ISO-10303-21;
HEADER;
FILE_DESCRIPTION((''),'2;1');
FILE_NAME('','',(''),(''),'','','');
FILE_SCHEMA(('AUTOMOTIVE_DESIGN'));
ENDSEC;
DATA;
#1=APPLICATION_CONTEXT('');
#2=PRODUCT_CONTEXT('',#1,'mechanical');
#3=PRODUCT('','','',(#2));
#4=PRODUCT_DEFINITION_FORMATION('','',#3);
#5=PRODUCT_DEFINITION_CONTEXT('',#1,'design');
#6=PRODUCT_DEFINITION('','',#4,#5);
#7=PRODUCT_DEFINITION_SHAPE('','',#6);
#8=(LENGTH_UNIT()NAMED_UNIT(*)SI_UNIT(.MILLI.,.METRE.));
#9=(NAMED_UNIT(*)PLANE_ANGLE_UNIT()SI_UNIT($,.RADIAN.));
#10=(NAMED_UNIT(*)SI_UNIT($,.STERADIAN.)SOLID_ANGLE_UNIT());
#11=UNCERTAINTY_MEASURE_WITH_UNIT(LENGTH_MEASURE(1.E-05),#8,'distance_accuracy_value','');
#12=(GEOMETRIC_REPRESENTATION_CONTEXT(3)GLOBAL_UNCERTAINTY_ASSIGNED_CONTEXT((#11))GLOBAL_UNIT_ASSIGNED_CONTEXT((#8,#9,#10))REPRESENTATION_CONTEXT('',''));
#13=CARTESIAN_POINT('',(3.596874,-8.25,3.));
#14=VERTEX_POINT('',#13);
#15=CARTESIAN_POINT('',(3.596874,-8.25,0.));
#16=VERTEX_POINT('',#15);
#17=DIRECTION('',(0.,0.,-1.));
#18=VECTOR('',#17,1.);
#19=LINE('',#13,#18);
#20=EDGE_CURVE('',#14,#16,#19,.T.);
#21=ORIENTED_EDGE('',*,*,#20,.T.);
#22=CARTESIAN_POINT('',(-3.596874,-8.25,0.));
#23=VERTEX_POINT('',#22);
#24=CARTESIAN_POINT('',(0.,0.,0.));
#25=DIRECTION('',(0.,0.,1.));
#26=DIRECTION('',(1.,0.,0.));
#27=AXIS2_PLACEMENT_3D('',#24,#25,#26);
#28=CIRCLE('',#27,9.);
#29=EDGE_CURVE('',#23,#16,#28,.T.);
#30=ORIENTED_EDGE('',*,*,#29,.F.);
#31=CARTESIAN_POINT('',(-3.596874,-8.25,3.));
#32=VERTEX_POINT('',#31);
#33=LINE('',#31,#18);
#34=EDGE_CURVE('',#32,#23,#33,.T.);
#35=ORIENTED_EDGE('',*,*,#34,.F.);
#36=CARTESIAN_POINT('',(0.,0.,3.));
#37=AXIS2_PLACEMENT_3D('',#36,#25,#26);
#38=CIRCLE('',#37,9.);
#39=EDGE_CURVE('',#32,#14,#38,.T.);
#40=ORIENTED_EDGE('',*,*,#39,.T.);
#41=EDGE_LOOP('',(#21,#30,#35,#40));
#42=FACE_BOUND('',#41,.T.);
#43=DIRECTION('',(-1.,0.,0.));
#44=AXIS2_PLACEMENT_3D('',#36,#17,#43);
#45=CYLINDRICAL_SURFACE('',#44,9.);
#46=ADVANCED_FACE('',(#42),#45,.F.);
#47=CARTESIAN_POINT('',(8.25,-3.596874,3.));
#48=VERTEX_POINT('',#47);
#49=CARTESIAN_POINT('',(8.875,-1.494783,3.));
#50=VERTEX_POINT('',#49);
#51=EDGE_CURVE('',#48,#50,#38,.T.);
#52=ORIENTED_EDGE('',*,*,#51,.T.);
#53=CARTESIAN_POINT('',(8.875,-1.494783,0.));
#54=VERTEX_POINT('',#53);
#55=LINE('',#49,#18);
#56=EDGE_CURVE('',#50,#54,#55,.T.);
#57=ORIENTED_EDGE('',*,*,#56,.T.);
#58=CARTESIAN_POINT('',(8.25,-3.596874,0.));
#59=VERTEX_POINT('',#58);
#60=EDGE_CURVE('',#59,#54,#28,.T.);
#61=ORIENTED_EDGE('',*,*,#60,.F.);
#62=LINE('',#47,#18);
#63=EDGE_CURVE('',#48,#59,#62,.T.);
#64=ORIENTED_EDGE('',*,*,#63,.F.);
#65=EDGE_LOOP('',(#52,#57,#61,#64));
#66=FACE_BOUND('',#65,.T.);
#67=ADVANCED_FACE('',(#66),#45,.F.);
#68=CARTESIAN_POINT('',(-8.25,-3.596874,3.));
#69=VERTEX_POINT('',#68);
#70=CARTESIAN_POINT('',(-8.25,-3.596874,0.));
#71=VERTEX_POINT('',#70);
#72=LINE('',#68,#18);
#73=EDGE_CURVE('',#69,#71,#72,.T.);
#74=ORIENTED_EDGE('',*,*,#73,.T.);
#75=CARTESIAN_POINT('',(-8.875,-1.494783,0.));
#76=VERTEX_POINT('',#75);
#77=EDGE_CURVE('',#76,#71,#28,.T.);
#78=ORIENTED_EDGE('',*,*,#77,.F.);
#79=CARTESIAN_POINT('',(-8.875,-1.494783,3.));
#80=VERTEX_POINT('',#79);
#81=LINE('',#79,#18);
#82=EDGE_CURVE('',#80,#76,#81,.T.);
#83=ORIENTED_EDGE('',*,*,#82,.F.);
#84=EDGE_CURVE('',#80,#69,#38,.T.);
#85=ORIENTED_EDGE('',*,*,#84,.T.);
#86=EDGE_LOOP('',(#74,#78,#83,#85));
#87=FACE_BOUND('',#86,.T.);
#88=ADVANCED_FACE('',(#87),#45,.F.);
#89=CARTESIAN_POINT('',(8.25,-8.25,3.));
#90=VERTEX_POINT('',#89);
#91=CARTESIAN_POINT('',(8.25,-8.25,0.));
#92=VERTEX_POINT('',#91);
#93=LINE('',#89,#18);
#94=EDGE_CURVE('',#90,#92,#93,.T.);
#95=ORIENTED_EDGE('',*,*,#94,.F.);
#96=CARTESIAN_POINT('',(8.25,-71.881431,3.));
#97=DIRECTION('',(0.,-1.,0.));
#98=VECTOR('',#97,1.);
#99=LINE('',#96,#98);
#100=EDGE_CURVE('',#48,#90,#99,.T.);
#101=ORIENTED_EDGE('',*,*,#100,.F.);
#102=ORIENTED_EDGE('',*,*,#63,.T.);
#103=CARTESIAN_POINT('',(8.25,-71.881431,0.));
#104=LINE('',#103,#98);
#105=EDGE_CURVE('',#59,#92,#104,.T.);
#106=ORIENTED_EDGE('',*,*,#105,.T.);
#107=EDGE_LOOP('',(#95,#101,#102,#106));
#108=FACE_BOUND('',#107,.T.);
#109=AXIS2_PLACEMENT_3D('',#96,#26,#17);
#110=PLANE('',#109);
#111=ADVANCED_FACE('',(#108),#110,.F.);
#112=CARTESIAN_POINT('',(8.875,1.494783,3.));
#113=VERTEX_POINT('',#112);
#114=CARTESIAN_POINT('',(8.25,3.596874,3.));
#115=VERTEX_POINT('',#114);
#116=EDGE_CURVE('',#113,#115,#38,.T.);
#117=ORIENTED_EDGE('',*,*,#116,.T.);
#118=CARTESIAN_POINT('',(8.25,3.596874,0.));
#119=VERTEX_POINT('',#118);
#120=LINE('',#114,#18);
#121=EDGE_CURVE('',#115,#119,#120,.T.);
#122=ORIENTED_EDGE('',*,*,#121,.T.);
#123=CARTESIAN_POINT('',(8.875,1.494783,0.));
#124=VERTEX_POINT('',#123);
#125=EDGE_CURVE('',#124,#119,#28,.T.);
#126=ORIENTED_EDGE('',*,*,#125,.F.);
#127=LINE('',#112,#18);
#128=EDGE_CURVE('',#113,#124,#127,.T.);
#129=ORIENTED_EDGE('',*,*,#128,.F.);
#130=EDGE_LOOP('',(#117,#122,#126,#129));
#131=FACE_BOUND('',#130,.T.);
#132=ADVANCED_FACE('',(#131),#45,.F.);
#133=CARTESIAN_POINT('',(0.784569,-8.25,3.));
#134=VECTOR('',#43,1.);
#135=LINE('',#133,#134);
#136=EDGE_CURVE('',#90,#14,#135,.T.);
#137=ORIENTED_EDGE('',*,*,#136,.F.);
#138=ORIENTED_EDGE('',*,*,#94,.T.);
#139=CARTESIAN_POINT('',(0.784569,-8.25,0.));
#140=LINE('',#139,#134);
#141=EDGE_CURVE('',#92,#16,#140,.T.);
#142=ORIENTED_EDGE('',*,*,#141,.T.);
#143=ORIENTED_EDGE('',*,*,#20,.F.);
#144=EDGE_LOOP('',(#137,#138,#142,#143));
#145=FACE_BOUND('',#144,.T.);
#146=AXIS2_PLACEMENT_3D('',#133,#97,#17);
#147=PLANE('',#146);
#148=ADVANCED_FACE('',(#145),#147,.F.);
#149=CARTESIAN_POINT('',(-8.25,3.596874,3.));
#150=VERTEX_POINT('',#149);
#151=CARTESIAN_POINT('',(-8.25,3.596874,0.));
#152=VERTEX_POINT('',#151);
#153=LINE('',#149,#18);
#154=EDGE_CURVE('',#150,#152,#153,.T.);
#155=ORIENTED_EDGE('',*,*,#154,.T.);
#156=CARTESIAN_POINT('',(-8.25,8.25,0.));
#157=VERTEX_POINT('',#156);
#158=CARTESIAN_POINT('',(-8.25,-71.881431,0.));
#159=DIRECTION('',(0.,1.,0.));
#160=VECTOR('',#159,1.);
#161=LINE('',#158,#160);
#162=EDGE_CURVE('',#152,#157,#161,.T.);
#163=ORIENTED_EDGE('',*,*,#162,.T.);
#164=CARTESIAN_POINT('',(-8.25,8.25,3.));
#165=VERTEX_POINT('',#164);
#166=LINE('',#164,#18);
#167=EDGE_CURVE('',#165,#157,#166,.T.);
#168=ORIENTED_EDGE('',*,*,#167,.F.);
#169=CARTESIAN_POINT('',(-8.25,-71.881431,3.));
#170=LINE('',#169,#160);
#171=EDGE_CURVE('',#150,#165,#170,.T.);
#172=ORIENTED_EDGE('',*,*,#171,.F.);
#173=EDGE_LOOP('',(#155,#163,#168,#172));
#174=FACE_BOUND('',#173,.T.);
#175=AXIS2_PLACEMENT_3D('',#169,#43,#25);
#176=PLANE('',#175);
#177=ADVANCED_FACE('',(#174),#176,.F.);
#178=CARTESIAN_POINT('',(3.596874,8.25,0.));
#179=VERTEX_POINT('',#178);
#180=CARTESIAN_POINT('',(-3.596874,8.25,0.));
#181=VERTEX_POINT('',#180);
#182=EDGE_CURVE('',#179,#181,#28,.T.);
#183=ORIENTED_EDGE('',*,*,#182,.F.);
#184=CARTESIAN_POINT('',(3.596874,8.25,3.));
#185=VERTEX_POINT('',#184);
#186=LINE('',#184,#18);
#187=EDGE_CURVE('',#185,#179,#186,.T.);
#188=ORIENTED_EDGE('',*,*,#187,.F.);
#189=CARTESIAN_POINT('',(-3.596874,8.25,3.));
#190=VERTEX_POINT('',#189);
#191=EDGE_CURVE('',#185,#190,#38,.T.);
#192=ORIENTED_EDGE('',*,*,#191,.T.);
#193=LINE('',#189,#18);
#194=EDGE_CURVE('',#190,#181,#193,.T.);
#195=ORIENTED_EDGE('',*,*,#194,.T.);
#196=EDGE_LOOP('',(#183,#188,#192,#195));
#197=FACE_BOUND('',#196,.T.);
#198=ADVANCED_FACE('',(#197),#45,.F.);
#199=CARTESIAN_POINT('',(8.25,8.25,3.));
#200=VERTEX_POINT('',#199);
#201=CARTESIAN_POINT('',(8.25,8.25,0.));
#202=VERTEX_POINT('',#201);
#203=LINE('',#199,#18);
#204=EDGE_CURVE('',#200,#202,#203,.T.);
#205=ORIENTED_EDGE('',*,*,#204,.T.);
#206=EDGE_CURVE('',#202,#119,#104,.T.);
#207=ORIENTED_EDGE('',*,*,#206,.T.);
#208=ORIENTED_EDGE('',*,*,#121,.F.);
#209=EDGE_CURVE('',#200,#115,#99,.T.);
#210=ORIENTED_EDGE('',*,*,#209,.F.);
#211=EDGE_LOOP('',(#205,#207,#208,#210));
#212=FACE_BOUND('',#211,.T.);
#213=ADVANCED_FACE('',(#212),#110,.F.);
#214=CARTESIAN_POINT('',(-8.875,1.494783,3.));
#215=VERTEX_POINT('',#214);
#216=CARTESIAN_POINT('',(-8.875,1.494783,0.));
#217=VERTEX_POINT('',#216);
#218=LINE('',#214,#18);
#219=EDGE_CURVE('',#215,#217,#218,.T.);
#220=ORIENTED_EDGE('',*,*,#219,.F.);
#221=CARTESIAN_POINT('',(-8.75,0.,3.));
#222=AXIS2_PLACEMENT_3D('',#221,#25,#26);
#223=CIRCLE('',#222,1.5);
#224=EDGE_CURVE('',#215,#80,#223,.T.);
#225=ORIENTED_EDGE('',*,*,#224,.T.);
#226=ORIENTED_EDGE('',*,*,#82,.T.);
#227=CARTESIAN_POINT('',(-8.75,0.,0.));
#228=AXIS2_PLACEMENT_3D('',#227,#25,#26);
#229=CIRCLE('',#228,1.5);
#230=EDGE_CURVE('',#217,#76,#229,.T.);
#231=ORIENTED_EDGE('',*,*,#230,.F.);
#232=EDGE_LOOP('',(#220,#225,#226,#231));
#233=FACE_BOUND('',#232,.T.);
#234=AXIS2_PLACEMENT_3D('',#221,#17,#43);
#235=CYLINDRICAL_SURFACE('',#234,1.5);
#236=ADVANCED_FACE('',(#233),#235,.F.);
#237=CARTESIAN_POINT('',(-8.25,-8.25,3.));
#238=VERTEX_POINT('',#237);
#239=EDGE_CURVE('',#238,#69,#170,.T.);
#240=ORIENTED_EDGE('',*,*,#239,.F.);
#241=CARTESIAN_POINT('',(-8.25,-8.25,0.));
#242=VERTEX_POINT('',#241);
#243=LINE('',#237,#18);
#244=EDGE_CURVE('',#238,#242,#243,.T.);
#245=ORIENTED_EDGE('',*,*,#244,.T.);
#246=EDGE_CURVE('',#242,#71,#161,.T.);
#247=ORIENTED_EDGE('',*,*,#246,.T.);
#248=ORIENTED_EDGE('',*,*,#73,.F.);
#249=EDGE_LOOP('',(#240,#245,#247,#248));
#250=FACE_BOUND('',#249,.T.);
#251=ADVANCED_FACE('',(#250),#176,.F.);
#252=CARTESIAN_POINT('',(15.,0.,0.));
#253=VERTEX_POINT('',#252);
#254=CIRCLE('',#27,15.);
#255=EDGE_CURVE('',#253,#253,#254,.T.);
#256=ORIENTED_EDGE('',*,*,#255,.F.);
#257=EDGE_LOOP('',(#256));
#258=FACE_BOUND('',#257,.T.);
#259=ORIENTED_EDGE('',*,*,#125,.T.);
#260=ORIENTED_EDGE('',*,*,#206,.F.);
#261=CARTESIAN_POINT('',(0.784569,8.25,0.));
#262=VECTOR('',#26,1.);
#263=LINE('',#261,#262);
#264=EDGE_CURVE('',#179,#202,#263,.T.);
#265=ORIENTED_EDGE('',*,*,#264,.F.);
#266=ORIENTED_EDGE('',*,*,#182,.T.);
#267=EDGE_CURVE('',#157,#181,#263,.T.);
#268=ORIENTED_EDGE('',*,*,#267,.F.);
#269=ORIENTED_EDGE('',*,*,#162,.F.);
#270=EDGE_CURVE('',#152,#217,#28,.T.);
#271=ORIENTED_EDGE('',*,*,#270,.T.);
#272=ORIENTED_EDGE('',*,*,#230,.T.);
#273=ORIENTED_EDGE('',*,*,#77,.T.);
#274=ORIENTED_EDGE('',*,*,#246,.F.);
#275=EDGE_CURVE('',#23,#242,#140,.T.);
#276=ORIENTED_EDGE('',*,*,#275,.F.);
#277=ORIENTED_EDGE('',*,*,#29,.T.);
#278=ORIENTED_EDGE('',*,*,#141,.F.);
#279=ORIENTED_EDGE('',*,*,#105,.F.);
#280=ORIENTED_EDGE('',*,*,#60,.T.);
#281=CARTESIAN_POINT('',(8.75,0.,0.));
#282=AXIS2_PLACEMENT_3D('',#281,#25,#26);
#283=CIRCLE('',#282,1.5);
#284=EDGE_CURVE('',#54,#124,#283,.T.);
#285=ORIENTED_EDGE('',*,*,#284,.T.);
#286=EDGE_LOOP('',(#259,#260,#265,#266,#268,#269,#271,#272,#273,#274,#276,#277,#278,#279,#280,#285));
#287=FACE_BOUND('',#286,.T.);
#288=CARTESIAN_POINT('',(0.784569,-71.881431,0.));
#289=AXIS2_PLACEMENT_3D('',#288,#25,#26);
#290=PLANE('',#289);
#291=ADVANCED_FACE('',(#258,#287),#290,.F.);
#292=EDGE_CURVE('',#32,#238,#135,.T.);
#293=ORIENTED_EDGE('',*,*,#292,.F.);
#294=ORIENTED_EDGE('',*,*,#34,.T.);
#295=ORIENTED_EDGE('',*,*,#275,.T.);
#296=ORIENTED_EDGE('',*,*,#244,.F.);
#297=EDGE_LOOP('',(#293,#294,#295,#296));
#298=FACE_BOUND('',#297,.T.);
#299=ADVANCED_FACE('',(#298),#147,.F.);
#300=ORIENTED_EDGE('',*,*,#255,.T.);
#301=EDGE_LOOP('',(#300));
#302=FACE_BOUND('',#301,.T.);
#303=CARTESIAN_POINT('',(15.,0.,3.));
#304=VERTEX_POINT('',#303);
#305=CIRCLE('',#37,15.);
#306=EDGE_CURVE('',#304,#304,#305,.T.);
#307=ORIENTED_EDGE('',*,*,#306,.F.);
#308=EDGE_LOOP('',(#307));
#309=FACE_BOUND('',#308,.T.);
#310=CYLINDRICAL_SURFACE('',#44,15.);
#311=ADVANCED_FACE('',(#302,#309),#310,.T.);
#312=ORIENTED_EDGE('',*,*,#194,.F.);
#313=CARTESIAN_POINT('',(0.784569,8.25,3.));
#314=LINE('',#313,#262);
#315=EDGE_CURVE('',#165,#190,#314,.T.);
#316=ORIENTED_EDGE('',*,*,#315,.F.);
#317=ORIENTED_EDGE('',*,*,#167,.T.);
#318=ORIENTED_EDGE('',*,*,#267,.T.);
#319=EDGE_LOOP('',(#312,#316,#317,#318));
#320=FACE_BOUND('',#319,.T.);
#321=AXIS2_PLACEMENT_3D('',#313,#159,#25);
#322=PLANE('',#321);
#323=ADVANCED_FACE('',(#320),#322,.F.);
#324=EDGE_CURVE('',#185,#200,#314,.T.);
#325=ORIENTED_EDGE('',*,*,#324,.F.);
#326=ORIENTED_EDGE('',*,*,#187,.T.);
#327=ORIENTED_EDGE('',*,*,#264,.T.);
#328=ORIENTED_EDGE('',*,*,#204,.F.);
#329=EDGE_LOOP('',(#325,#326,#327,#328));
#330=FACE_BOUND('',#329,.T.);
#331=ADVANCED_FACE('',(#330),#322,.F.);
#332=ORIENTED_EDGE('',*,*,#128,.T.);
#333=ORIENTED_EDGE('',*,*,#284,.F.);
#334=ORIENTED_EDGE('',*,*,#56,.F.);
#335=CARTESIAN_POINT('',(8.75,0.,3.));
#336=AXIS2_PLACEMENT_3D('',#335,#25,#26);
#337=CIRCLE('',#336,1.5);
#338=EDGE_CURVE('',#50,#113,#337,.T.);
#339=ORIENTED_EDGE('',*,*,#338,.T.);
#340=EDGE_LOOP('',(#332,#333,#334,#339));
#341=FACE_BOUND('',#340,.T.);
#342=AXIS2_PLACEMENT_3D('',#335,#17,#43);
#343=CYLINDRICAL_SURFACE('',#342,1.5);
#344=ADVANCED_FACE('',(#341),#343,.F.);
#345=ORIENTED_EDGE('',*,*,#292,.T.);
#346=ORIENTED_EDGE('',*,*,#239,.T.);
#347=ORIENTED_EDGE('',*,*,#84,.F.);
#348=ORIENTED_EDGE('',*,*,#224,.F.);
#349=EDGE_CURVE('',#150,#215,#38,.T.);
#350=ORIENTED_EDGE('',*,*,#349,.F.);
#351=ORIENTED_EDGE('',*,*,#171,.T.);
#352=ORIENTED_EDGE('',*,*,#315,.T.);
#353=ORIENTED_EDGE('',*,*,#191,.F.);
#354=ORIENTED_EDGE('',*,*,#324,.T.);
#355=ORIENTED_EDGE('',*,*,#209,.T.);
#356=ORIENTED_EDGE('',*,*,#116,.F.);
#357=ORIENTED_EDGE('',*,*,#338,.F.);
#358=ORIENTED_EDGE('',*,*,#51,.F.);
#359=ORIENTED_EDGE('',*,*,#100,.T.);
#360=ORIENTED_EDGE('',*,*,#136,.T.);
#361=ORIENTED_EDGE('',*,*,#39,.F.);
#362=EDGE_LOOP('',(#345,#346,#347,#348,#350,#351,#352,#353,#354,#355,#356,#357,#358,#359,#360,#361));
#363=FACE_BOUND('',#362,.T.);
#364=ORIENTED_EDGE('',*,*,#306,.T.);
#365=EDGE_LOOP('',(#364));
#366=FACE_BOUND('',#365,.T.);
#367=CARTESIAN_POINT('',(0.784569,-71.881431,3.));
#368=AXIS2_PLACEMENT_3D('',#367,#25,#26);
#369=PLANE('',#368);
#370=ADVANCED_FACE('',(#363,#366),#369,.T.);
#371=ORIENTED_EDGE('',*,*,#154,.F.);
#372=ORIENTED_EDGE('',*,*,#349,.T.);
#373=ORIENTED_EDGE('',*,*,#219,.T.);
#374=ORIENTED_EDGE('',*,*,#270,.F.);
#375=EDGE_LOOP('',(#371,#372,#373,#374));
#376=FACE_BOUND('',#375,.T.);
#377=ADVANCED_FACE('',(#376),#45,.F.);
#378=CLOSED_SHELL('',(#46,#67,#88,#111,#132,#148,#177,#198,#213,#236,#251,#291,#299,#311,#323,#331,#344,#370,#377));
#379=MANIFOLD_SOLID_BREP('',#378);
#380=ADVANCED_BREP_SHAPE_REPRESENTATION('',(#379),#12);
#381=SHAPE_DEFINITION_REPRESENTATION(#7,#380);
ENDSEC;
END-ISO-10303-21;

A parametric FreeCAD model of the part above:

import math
import FreeCAD as App
import Part
import Sketcher

doc = App.newDocument("Part")
params = doc.addObject("Spreadsheet::Sheet", "Params")
for row, (alias, value) in enumerate([
    ("sketch1_diameter", "30 mm"),
    ("sketch1_radius", "9 mm"),
    ("sketch1_radius2", "1.5 mm"),
    ("pad1_length", "3 mm"),
], start=1):
    params.set(f"A{row}", alias)
    params.set(f"B{row}", "=" + value)
    params.setAlias(f"B{row}", alias)

body = doc.addObject("PartDesign::Body", "Body")

# Sketch on XY plane
sketch1 = body.newObject("Sketcher::SketchObject", "Sketch")
sketch1.AttachmentSupport = (doc.getObject("XY_Plane"), [""])
sketch1.MapMode = "FlatFace"
sketch1.addGeometry(Part.Circle(App.Vector(0, 0, 0), App.Vector(0, 0, 1), 15), False)
sketch1.addGeometry(Part.ArcOfCircle(Part.Circle(App.Vector(0, 0, 0), App.Vector(0, 0, 1), 9), math.radians(9.560384), math.radians(23.556464)), False)
sketch1.addGeometry(Part.ArcOfCircle(Part.Circle(App.Vector(8.75, 0, 0), App.Vector(0, 0, 1), 1.5), math.radians(-85.219808), math.radians(85.219808)), False)
sketch1.addGeometry(Part.ArcOfCircle(Part.Circle(App.Vector(0, 0, 0), App.Vector(0, 0, 1), 9), math.radians(-23.556464), math.radians(-9.560384)), False)
sketch1.addGeometry(Part.LineSegment(App.Vector(8.25, -3.596874, 0), App.Vector(8.25, -8.25, 0)), False)
sketch1.addGeometry(Part.LineSegment(App.Vector(8.25, -8.25, 0), App.Vector(3.596874, -8.25, 0)), False)
sketch1.addGeometry(Part.ArcOfCircle(Part.Circle(App.Vector(0, 0, 0), App.Vector(0, 0, 1), 9), math.radians(-113.556464), math.radians(-66.443536)), False)
sketch1.addGeometry(Part.LineSegment(App.Vector(-3.596874, -8.25, 0), App.Vector(-8.25, -8.25, 0)), False)
sketch1.addGeometry(Part.LineSegment(App.Vector(-8.25, -8.25, 0), App.Vector(-8.25, -3.596874, 0)), False)
sketch1.addGeometry(Part.ArcOfCircle(Part.Circle(App.Vector(0, 0, 0), App.Vector(0, 0, 1), 9), math.radians(-170.439616), math.radians(-156.443536)), False)
sketch1.addGeometry(Part.ArcOfCircle(Part.Circle(App.Vector(-8.75, 0, 0), App.Vector(0, 0, 1), 1.5), math.radians(94.780192), math.radians(265.219808)), False)
sketch1.addGeometry(Part.ArcOfCircle(Part.Circle(App.Vector(0, 0, 0), App.Vector(0, 0, 1), 9), math.radians(156.443536), math.radians(170.439616)), False)
sketch1.addGeometry(Part.LineSegment(App.Vector(-8.25, 3.596874, 0), App.Vector(-8.25, 8.25, 0)), False)
sketch1.addGeometry(Part.LineSegment(App.Vector(-8.25, 8.25, 0), App.Vector(-3.596874, 8.25, 0)), False)
sketch1.addGeometry(Part.ArcOfCircle(Part.Circle(App.Vector(0, 0, 0), App.Vector(0, 0, 1), 9), math.radians(66.443536), math.radians(113.556464)), False)
sketch1.addGeometry(Part.LineSegment(App.Vector(3.596874, 8.25, 0), App.Vector(8.25, 8.25, 0)), False)
sketch1.addGeometry(Part.LineSegment(App.Vector(8.25, 8.25, 0), App.Vector(8.25, 3.596874, 0)), False)
sketch1.addConstraint(Sketcher.Constraint("Coincident", 1, 1, 2, 2))
sketch1.addConstraint(Sketcher.Constraint("Coincident", 2, 1, 3, 2))
sketch1.addConstraint(Sketcher.Constraint("Coincident", 3, 1, 4, 1))
sketch1.addConstraint(Sketcher.Constraint("Coincident", 4, 2, 5, 1))
sketch1.addConstraint(Sketcher.Constraint("Coincident", 5, 2, 6, 2))
sketch1.addConstraint(Sketcher.Constraint("Coincident", 6, 1, 7, 1))
sketch1.addConstraint(Sketcher.Constraint("Coincident", 7, 2, 8, 1))
sketch1.addConstraint(Sketcher.Constraint("Coincident", 8, 2, 9, 2))
sketch1.addConstraint(Sketcher.Constraint("Coincident", 9, 1, 10, 2))
sketch1.addConstraint(Sketcher.Constraint("Coincident", 10, 1, 11, 2))
sketch1.addConstraint(Sketcher.Constraint("Coincident", 11, 1, 12, 1))
sketch1.addConstraint(Sketcher.Constraint("Coincident", 12, 2, 13, 1))
sketch1.addConstraint(Sketcher.Constraint("Coincident", 13, 2, 14, 2))
sketch1.addConstraint(Sketcher.Constraint("Coincident", 14, 1, 15, 1))
sketch1.addConstraint(Sketcher.Constraint("Coincident", 15, 2, 16, 1))
sketch1.addConstraint(Sketcher.Constraint("Coincident", 16, 2, 1, 2))
sketch1.addConstraint(Sketcher.Constraint("Vertical", 4))
sketch1.addConstraint(Sketcher.Constraint("Horizontal", 5))
sketch1.addConstraint(Sketcher.Constraint("Horizontal", 7))
sketch1.addConstraint(Sketcher.Constraint("Vertical", 8))
sketch1.addConstraint(Sketcher.Constraint("Vertical", 12))
sketch1.addConstraint(Sketcher.Constraint("Horizontal", 13))
sketch1.addConstraint(Sketcher.Constraint("Horizontal", 15))
sketch1.addConstraint(Sketcher.Constraint("Vertical", 16))
sketch1.addConstraint(Sketcher.Constraint("Coincident", 0, 3, -1, 1))
sketch1.addConstraint(Sketcher.Constraint("Coincident", 1, 3, -1, 1))
sketch1.addConstraint(Sketcher.Constraint("Coincident", 3, 3, -1, 1))
sketch1.addConstraint(Sketcher.Constraint("Coincident", 6, 3, -1, 1))
sketch1.addConstraint(Sketcher.Constraint("Coincident", 9, 3, -1, 1))
sketch1.addConstraint(Sketcher.Constraint("Coincident", 11, 3, -1, 1))
sketch1.addConstraint(Sketcher.Constraint("Coincident", 14, 3, -1, 1))
sketch1.addConstraint(Sketcher.Constraint("Equal", 1, 3))
sketch1.addConstraint(Sketcher.Constraint("Equal", 3, 6))
sketch1.addConstraint(Sketcher.Constraint("Equal", 6, 9))
sketch1.addConstraint(Sketcher.Constraint("Equal", 2, 10))
sketch1.addConstraint(Sketcher.Constraint("Equal", 9, 11))
sketch1.addConstraint(Sketcher.Constraint("Equal", 11, 14))
sketch1.addConstraint(Sketcher.Constraint("Symmetric", 2, 3, 10, 3, -1, 1))
sketch1.addConstraint(Sketcher.Constraint("Symmetric", 4, 2, 12, 2, -1, 1))
sketch1.addConstraint(Sketcher.Constraint("Symmetric", 7, 2, 15, 2, -1, 1))
sketch1.addConstraint(Sketcher.Constraint("Symmetric", 4, 2, 7, 2, -2))
sketch1.addConstraint(Sketcher.Constraint("PointOnObject", 2, 3, -1))
sketch1.addConstraint(Sketcher.Constraint("Equal", 15, 4))
sketch1.addConstraint(Sketcher.Constraint("Diameter", 0, 30.0))
sketch1.addConstraint(Sketcher.Constraint("Radius", 1, 9.0))
sketch1.addConstraint(Sketcher.Constraint("Radius", 2, 1.5))
sketch1.addConstraint(Sketcher.Constraint("DistanceX", 3, 1, 2, 3, 0.5))
sketch1.addConstraint(Sketcher.Constraint("DistanceX", -1, 1, 2, 3, 8.75))
sketch1.setExpression("Constraints[43]", "Params.sketch1_diameter")
sketch1.setExpression("Constraints[44]", "Params.sketch1_radius")
sketch1.setExpression("Constraints[45]", "Params.sketch1_radius2")
pad1 = body.newObject("PartDesign::Pad", "Pad")
pad1.Profile = sketch1
pad1.setExpression("Length", "Params.pad1_length")

doc.recompute()
